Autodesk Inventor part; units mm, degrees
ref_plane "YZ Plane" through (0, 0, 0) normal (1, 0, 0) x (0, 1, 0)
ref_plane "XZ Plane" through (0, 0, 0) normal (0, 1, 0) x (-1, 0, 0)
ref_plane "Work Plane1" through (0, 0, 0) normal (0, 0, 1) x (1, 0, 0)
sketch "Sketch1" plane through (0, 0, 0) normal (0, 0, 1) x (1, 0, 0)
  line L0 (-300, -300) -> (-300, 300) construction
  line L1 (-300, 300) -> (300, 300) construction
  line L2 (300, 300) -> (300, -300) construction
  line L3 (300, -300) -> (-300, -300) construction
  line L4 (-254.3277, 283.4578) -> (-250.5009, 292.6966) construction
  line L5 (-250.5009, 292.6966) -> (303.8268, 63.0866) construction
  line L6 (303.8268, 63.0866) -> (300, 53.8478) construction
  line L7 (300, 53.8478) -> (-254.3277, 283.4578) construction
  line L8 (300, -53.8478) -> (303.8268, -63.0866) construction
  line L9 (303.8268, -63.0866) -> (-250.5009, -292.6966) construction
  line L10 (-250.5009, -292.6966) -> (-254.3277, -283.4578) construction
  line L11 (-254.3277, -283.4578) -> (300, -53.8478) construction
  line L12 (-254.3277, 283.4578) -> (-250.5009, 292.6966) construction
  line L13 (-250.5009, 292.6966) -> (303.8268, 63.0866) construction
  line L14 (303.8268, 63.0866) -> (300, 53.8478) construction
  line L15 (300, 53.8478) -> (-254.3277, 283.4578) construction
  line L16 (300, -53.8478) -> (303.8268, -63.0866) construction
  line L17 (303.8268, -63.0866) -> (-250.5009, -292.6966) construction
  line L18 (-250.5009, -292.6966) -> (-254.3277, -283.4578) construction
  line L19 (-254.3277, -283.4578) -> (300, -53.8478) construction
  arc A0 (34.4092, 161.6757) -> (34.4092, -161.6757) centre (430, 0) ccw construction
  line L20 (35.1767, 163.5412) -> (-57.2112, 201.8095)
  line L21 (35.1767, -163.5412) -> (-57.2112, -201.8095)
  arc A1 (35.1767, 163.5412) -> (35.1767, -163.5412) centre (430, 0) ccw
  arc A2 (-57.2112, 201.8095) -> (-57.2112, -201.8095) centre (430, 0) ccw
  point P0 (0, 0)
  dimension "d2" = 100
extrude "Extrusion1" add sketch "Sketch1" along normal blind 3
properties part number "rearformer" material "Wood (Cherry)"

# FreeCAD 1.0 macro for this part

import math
import FreeCAD as App
import Part
import Sketcher
from FreeCAD import Vector
Q = App.Units.Quantity

doc = App.newDocument("Part")
params = doc.addObject("Spreadsheet::Sheet", "Params")
for row, (alias, value) in enumerate([
    ("sketch1_length", "3.937 in"),
    ("pad1_length", "0.1181102 in"),
], start=1):
    params.set(f"A{row}", alias)
    params.set(f"B{row}", "=" + value)
    params.setAlias(f"B{row}", alias)

body = doc.addObject("PartDesign::Body", "Body")

# Sketch on XY plane
sketch1 = body.newObject("Sketcher::SketchObject", "Sketch")
sketch1.AttachmentSupport = (doc.getObject("XY_Plane"), [""])
sketch1.MapMode = "FlatFace"
sketch1.addGeometry(Part.ArcOfCircle(Part.Circle(Vector(430, 0, 0), Vector(0, 0, 1), 427.353674), math.radians(157.499996), math.radians(202.500004)), False)
sketch1.addGeometry(Part.LineSegment(Vector(35.1767, 163.5412, 0), Vector(-57.2112, 201.8095, 0)), False)
sketch1.addGeometry(Part.ArcOfCircle(Part.Circle(Vector(430, 0, 0), Vector(0, 0, 1), 527.353608), math.radians(157.499999), math.radians(202.500001)), False)
sketch1.addGeometry(Part.LineSegment(Vector(-57.2112, -201.8095, 0), Vector(35.1767, -163.5412, 0)), False)
sketch1.addConstraint(Sketcher.Constraint("Coincident", 0, 1, 1, 1))
sketch1.addConstraint(Sketcher.Constraint("Coincident", 1, 2, 2, 1))
sketch1.addConstraint(Sketcher.Constraint("Coincident", 2, 2, 3, 1))
sketch1.addConstraint(Sketcher.Constraint("Coincident", 3, 2, 0, 2))
sketch1.addConstraint(Sketcher.Constraint("Coincident", 2, 3, 0, 3))
sketch1.addConstraint(Sketcher.Constraint("Symmetric", 0, 1, 3, 2, -1))
sketch1.addConstraint(Sketcher.Constraint("Vertical", 1, 2, 2, 2))
sketch1.addConstraint(Sketcher.Constraint("Distance", 1, Q("3.937 in")))
sketch1.addConstraint(Sketcher.Constraint("Angle", 1, Q("157.5 deg")))
sketch1.addConstraint(Sketcher.Constraint("Radius", 0, 427.3537))
sketch1.addConstraint(Sketcher.Constraint("DistanceX", -1, 1, 0, 1, Q("1.3849 in")))
sketch1.addConstraint(Sketcher.Constraint("DistanceX", -1, 1, 0, 3, 430.0))
sketch1.setExpression("Constraints[7]", "Params.sketch1_length")
pad1 = body.newObject("PartDesign::Pad", "Pad")
pad1.Profile = sketch1
pad1.setExpression("Length", "Params.pad1_length")

doc.recompute()
